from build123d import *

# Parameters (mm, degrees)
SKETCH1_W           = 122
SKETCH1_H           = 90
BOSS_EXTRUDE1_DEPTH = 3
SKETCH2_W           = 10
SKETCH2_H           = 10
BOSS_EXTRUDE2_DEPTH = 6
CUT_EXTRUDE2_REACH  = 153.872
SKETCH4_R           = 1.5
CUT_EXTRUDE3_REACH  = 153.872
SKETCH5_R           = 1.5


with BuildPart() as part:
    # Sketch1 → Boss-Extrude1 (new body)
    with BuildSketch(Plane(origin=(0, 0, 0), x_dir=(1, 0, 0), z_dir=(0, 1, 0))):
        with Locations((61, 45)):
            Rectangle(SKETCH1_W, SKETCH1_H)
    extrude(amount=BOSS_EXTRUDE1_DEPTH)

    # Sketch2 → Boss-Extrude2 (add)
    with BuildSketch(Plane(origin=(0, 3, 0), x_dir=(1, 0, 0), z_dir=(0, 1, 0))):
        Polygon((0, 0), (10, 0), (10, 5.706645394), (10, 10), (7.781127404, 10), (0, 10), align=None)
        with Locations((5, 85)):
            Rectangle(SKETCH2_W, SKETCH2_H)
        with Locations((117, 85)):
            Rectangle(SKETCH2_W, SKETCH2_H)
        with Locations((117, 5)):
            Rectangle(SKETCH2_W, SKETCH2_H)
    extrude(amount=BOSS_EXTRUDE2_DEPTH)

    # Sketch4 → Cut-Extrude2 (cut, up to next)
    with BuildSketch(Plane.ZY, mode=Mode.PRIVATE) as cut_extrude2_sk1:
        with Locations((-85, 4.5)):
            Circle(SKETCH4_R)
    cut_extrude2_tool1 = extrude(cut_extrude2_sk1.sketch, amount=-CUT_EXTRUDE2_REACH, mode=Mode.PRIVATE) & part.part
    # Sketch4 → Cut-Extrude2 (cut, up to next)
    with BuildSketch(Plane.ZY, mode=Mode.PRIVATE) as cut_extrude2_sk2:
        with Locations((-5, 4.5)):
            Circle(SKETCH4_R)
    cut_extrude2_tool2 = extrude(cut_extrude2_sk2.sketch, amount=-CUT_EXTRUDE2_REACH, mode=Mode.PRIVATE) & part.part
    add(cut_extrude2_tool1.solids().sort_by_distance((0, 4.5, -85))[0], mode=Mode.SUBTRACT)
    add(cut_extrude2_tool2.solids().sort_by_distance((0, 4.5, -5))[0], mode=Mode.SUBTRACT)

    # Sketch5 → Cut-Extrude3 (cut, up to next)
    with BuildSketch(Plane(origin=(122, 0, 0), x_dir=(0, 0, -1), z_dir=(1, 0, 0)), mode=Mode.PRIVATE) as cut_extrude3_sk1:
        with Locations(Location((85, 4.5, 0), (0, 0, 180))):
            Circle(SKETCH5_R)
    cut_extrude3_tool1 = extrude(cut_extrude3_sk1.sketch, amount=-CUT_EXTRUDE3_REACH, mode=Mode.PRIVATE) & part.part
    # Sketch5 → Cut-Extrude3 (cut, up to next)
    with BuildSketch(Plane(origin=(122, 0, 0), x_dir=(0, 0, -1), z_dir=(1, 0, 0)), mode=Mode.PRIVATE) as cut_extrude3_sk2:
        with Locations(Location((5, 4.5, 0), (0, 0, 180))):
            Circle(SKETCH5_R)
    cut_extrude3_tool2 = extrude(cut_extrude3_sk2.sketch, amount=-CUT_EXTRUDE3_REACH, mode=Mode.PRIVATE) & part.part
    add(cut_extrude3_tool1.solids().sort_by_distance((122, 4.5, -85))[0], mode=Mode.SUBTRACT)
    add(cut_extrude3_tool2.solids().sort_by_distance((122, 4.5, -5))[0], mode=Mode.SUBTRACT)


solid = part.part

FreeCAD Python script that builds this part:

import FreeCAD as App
import Part
import Sketcher

V = App.Vector
Q = App.Units.Quantity


def add_polygon(sketch, points):
    """Adds a closed chain of lines whose ends are joined by coincident constraints."""
    first, n = sketch.GeometryCount, len(points)
    for a, b in zip(points, points[1:] + points[:1]):
        sketch.addGeometry(Part.LineSegment(App.Vector(*a, 0), App.Vector(*b, 0)), False)
    for i in range(n):
        sketch.addConstraint(Sketcher.Constraint("Coincident", first + i, 2, first + (i + 1) % n, 1))

doc = App.newDocument("Part")
body = doc.addObject("PartDesign::Body", "Body")

# Sketch on XZ plane
sketch1 = body.newObject("Sketcher::SketchObject", "Sketch")
sketch1.AttachmentSupport = (doc.getObject("XZ_Plane"), [""])
sketch1.MapMode = "FlatFace"
add_polygon(sketch1, [(0, -90), (0, 0), (122, 0), (122, -90)])  # lines 0-3
sketch1.addConstraint([
    Sketcher.Constraint("Vertical", 0),
    Sketcher.Constraint("Horizontal", 1),
    Sketcher.Constraint("Vertical", 2),
    Sketcher.Constraint("Horizontal", 3),
    Sketcher.Constraint("Coincident", 0, 2, -1, 1),
    Sketcher.Constraint("DistanceX", 1, 1, 1, 2, Q("122 mm")),
    Sketcher.Constraint("DistanceY", 0, 1, 0, 2, Q("90 mm")),
])
pad1 = body.newObject("PartDesign::Pad", "Pad")
pad1.Profile = sketch1
pad1.Length = 3
pad1.Reversed = True

# Sketch on XZ plane
sketch2 = body.newObject("Sketcher::SketchObject", "Sketch001")
sketch2.AttachmentSupport = (doc.getObject("XZ_Plane"), [""])
sketch2.MapMode = "FlatFace"
sketch2.AttachmentOffset = App.Placement(V(0, 0, -3), App.Rotation())
add_polygon(sketch2, [(0, 0), (10, 0), (10, -10), (0, -10)])  # lines 0-3
add_polygon(sketch2, [(0, -90), (0, -80), (10, -80), (10, -90)])  # lines 4-7
add_polygon(sketch2, [(112, -90), (112, -80), (122, -80), (122, -90)])  # lines 8-11
add_polygon(sketch2, [(112, -10), (112, 0), (122, 0), (122, -10)])  # lines 12-15
sketch2.addConstraint([
    Sketcher.Constraint("Horizontal", 0),
    Sketcher.Constraint("Vertical", 1),
    Sketcher.Constraint("Horizontal", 2),
    Sketcher.Constraint("Vertical", 3),
    Sketcher.Constraint("Vertical", 4),
    Sketcher.Constraint("Horizontal", 5),
    Sketcher.Constraint("Vertical", 6),
    Sketcher.Constraint("Horizontal", 7),
    Sketcher.Constraint("Vertical", 8),
    Sketcher.Constraint("Horizontal", 9),
    Sketcher.Constraint("Vertical", 10),
    Sketcher.Constraint("Horizontal", 11),
    Sketcher.Constraint("Vertical", 12),
    Sketcher.Constraint("Horizontal", 13),
    Sketcher.Constraint("Vertical", 14),
    Sketcher.Constraint("Horizontal", 15),
    Sketcher.Constraint("Coincident", 3, 2, -1, 1),
    Sketcher.Constraint("PointOnObject", 4, 2, -2),
    Sketcher.Constraint("PointOnObject", 12, 2, -1),
    Sketcher.Constraint("Horizontal", 5, 2, 8, 2),
    Sketcher.Constraint("Horizontal", 7, 2, 10, 2),
    Sketcher.Constraint("Horizontal", 2, 2, 14, 2),
    Sketcher.Constraint("Vertical", 1, 2, 5, 2),
    Sketcher.Constraint("Vertical", 11, 2, 12, 2),
    Sketcher.Constraint("Vertical", 10, 2, 13, 2),
    Sketcher.Constraint("Equal", 7, 9),
    Sketcher.Constraint("Equal", 15, 1),
    Sketcher.Constraint("Equal", 3, 4),
    Sketcher.Constraint("DistanceX", 0, 1, 0, 2, Q("10 mm")),
    Sketcher.Constraint("DistanceY", 4, 2, -1, 1, Q("80 mm")),
    Sketcher.Constraint("DistanceX", -1, 1, 8, 2, Q("112 mm")),
])
pad2 = body.newObject("PartDesign::Pad", "Pad001")
pad2.Profile = sketch2
pad2.Length = 6
pad2.Reversed = True

# Sketch on YZ plane
sketch3 = body.newObject("Sketcher::SketchObject", "Sketch002")
sketch3.AttachmentSupport = (doc.getObject("YZ_Plane"), [""])
sketch3.MapMode = "FlatFace"
sketch3.addGeometry(Part.Circle(V(4.5, -85, 0), V(0, 0, 1), 1.5), False)
sketch3.addConstraint([
    Sketcher.Constraint("Diameter", 0, Q("3 mm")),
    Sketcher.Constraint("DistanceY", 0, 3, -1, 1, Q("85 mm")),
    Sketcher.Constraint("DistanceX", -1, 1, 0, 3, Q("4.5 mm")),
])
pocket1 = body.newObject("PartDesign::Pocket", "Pocket")
pocket1.Profile = sketch3
pocket1.Type = "UpToFirst"
pocket1.Reversed = True

# Sketch on YZ plane
sketch4 = body.newObject("Sketcher::SketchObject", "Sketch003")
sketch4.AttachmentSupport = (doc.getObject("YZ_Plane"), [""])
sketch4.MapMode = "FlatFace"
sketch4.addGeometry(Part.Circle(V(4.5, -5, 0), V(0, 0, 1), 1.5), False)
sketch4.addConstraint([
    Sketcher.Constraint("Diameter", 0, Q("3 mm")),
    Sketcher.Constraint("DistanceY", 0, 3, -1, 1, Q("5 mm")),
    Sketcher.Constraint("DistanceX", -1, 1, 0, 3, Q("4.5 mm")),
])
pocket2 = body.newObject("PartDesign::Pocket", "Pocket001")
pocket2.Profile = sketch4
pocket2.Type = "UpToFirst"
pocket2.Reversed = True

# Sketch on YZ plane
sketch5 = body.newObject("Sketcher::SketchObject", "Sketch004")
sketch5.AttachmentSupport = (doc.getObject("YZ_Plane"), [""])
sketch5.MapMode = "FlatFace"
sketch5.AttachmentOffset = App.Placement(V(0, 0, 122), App.Rotation())
sketch5.addGeometry(Part.Circle(V(4.5, -85, 0), V(0, 0, 1), 1.5), False)
sketch5.addConstraint([
    Sketcher.Constraint("Diameter", 0, Q("3 mm")),
    Sketcher.Constraint("DistanceY", 0, 3, -1, 1, Q("85 mm")),
    Sketcher.Constraint("DistanceX", -1, 1, 0, 3, Q("4.5 mm")),
])
pocket3 = body.newObject("PartDesign::Pocket", "Pocket002")
pocket3.Profile = sketch5
pocket3.Type = "UpToFirst"

# Sketch on YZ plane
sketch6 = body.newObject("Sketcher::SketchObject", "Sketch005")
sketch6.AttachmentSupport = (doc.getObject("YZ_Plane"), [""])
sketch6.MapMode = "FlatFace"
sketch6.AttachmentOffset = App.Placement(V(0, 0, 122), App.Rotation())
sketch6.addGeometry(Part.Circle(V(4.5, -5, 0), V(0, 0, 1), 1.5), False)
sketch6.addConstraint([
    Sketcher.Constraint("Diameter", 0, Q("3 mm")),
    Sketcher.Constraint("DistanceY", 0, 3, -1, 1, Q("5 mm")),
    Sketcher.Constraint("DistanceX", -1, 1, 0, 3, Q("4.5 mm")),
])
pocket4 = body.newObject("PartDesign::Pocket", "Pocket003")
pocket4.Profile = sketch6
pocket4.Type = "UpToFirst"

doc.recompute()
